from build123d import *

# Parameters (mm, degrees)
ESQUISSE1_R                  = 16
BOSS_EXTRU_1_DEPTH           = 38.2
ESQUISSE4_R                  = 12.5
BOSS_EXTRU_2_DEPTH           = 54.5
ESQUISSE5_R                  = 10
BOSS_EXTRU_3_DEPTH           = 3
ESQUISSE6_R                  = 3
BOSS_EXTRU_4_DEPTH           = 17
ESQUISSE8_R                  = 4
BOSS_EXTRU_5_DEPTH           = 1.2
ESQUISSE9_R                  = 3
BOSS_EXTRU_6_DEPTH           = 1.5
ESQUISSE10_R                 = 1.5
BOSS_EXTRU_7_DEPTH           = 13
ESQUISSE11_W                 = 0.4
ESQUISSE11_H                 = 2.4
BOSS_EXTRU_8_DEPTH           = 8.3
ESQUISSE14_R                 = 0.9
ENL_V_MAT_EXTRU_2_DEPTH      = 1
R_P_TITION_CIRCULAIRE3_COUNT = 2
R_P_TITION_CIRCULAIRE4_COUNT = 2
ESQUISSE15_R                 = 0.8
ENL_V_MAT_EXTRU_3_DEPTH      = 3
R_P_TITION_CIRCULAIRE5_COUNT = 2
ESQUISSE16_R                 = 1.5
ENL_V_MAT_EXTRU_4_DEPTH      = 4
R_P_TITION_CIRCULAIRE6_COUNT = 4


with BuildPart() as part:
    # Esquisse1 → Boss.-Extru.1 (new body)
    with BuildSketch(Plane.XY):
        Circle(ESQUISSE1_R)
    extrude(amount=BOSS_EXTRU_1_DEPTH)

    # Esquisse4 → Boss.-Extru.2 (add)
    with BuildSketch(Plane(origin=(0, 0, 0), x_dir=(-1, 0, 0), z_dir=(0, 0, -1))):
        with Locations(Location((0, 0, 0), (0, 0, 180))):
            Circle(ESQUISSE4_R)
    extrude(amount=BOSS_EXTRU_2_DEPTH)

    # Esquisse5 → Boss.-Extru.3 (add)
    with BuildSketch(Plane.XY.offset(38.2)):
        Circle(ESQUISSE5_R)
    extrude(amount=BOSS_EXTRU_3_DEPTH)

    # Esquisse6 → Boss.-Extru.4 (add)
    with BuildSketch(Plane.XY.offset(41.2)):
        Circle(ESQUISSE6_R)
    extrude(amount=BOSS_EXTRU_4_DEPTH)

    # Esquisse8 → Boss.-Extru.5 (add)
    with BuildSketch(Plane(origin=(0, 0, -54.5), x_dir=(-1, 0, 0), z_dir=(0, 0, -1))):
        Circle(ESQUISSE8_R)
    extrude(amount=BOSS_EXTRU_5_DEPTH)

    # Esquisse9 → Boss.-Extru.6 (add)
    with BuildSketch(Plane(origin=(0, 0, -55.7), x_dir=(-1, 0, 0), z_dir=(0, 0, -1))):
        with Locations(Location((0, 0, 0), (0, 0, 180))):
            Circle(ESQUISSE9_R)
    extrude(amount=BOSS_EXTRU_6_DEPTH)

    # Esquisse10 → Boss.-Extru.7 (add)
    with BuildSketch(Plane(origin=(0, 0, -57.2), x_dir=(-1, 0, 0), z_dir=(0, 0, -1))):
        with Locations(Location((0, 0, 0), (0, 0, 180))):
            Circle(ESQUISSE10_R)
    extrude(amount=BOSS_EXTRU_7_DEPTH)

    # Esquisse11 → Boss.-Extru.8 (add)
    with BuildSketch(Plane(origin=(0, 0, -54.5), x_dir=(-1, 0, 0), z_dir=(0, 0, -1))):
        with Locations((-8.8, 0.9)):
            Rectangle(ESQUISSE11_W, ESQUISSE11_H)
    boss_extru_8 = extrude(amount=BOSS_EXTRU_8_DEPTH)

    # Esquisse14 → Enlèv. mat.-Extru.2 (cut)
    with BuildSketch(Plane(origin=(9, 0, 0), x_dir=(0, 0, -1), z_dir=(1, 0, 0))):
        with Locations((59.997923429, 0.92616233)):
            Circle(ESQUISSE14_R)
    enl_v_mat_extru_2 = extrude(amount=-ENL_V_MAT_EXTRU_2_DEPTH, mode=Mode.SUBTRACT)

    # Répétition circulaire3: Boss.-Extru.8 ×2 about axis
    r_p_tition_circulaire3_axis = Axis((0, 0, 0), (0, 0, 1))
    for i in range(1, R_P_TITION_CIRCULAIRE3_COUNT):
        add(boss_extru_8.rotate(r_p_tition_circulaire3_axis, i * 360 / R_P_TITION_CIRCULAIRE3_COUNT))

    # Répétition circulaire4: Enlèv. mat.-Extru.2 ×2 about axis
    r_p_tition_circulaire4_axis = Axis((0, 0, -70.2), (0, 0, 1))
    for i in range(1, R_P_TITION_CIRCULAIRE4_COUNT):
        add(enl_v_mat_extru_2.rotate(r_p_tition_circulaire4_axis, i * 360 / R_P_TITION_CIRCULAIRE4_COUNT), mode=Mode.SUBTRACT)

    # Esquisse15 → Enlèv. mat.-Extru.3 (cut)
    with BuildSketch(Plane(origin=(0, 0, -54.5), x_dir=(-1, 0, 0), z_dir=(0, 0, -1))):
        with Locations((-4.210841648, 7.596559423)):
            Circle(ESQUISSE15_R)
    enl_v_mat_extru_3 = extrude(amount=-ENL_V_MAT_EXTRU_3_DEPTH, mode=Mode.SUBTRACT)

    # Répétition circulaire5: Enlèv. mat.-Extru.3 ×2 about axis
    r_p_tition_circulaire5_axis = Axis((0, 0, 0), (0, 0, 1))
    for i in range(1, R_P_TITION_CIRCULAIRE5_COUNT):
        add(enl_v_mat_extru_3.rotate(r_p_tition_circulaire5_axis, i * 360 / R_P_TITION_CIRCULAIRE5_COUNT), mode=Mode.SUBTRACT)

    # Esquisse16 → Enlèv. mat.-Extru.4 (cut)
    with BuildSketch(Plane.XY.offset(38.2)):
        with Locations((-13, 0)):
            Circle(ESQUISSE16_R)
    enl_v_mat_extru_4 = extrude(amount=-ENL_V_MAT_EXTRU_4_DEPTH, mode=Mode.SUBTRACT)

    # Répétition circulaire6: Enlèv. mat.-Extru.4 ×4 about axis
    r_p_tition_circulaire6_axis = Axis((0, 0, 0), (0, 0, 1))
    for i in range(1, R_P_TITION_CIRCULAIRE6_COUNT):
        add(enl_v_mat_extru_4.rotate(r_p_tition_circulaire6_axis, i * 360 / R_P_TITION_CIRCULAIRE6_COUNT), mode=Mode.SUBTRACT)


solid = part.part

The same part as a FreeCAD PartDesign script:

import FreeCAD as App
import Part
import Sketcher

doc = App.newDocument("Part")
params = doc.addObject("Spreadsheet::Sheet", "Params")
for row, (alias, value) in enumerate([
    ("sketch1_diameter", "32 mm"),
    ("pad1_length", "38.2 mm"),
    ("sketch2_diameter", "25 mm"),
    ("pad2_length", "54.5 mm"),
    ("sketch3_diameter", "20 mm"),
    ("pad3_length", "3 mm"),
    ("sketch4_diameter", "6 mm"),
    ("pad4_length", "17 mm"),
    ("sketch5_diameter", "8 mm"),
    ("pad5_length", "1.2 mm"),
    ("sketch6_diameter", "6 mm"),
    ("pad6_length", "1.5 mm"),
    ("sketch7_diameter", "3 mm"),
    ("pad7_length", "13 mm"),
    ("sketch8_width", "0.4 mm"),
    ("sketch8_height", "2.4 mm"),
    ("pad8_length", "8.3 mm"),
    ("sketch9_diameter", "1.8 mm"),
    ("pocket1_length", "1 mm"),
    ("sketch10_diameter", "1.6 mm"),
    ("pocket2_length", "3 mm"),
    ("sketch11_diameter", "3 mm"),
    ("pocket3_length", "4 mm"),
], start=1):
    params.set(f"A{row}", alias)
    params.set(f"B{row}", "=" + value)
    params.setAlias(f"B{row}", alias)

body = doc.addObject("PartDesign::Body", "Body")

# Sketch on XY plane
sketch1 = body.newObject("Sketcher::SketchObject", "Sketch")
sketch1.AttachmentSupport = (doc.getObject("XY_Plane"), [""])
sketch1.MapMode = "FlatFace"
sketch1.addGeometry(Part.Circle(App.Vector(0, 0, 0), App.Vector(0, 0, 1), 16), False)
sketch1.addConstraint([
    Sketcher.Constraint("Coincident", 0, 3, -1, 1),
    Sketcher.Constraint("Diameter", 0, 32.0),
])
sketch1.setExpression("Constraints[1]", "Params.sketch1_diameter")
pad1 = body.newObject("PartDesign::Pad", "Pad")
pad1.Profile = sketch1
pad1.setExpression("Length", "Params.pad1_length")

# Sketch on XY plane
sketch2 = body.newObject("Sketcher::SketchObject", "Sketch001")
sketch2.AttachmentSupport = (doc.getObject("XY_Plane"), [""])
sketch2.MapMode = "FlatFace"
sketch2.addGeometry(Part.Circle(App.Vector(0, 0, 0), App.Vector(0, 0, 1), 12), False)
sketch2.addConstraint([
    Sketcher.Constraint("Coincident", 0, 3, -1, 1),
    Sketcher.Constraint("Diameter", 0, 25.0),
])
sketch2.setExpression("Constraints[1]", "Params.sketch2_diameter")
pad2 = body.newObject("PartDesign::Pad", "Pad001")
pad2.Profile = sketch2
pad2.setExpression("Length", "Params.pad2_length")
pad2.Reversed = True

# Sketch on XY plane
sketch3 = body.newObject("Sketcher::SketchObject", "Sketch002")
sketch3.AttachmentSupport = (doc.getObject("XY_Plane"), [""])
sketch3.MapMode = "FlatFace"
sketch3.AttachmentOffset = App.Placement(App.Vector(0, 0, 38.2), App.Rotation())
sketch3.addGeometry(Part.Circle(App.Vector(0, 0, 0), App.Vector(0, 0, 1), 10), False)
sketch3.addConstraint([
    Sketcher.Constraint("Coincident", 0, 3, -1, 1),
    Sketcher.Constraint("Diameter", 0, 20.0),
])
sketch3.setExpression("Constraints[1]", "Params.sketch3_diameter")
pad3 = body.newObject("PartDesign::Pad", "Pad002")
pad3.Profile = sketch3
pad3.setExpression("Length", "Params.pad3_length")

# Sketch on XY plane
sketch4 = body.newObject("Sketcher::SketchObject", "Sketch003")
sketch4.AttachmentSupport = (doc.getObject("XY_Plane"), [""])
sketch4.MapMode = "FlatFace"
sketch4.AttachmentOffset = App.Placement(App.Vector(0, 0, 41.2), App.Rotation())
sketch4.addGeometry(Part.Circle(App.Vector(0, 0, 0), App.Vector(0, 0, 1), 3), False)
sketch4.addConstraint([
    Sketcher.Constraint("Coincident", 0, 3, -1, 1),
    Sketcher.Constraint("Diameter", 0, 6.0),
])
sketch4.setExpression("Constraints[1]", "Params.sketch4_diameter")
pad4 = body.newObject("PartDesign::Pad", "Pad003")
pad4.Profile = sketch4
pad4.setExpression("Length", "Params.pad4_length")

# Sketch on XY plane
sketch5 = body.newObject("Sketcher::SketchObject", "Sketch004")
sketch5.AttachmentSupport = (doc.getObject("XY_Plane"), [""])
sketch5.MapMode = "FlatFace"
sketch5.AttachmentOffset = App.Placement(App.Vector(0, 0, -54.5), App.Rotation())
sketch5.addGeometry(Part.Circle(App.Vector(0, 0, 0), App.Vector(0, 0, 1), 4), False)
sketch5.addConstraint([
    Sketcher.Constraint("Coincident", 0, 3, -1, 1),
    Sketcher.Constraint("Diameter", 0, 8.0),
])
sketch5.setExpression("Constraints[1]", "Params.sketch5_diameter")
pad5 = body.newObject("PartDesign::Pad", "Pad004")
pad5.Profile = sketch5
pad5.setExpression("Length", "Params.pad5_length")
pad5.Reversed = True

# Sketch on XY plane
sketch6 = body.newObject("Sketcher::SketchObject", "Sketch005")
sketch6.AttachmentSupport = (doc.getObject("XY_Plane"), [""])
sketch6.MapMode = "FlatFace"
sketch6.AttachmentOffset = App.Placement(App.Vector(0, 0, -55.7), App.Rotation())
sketch6.addGeometry(Part.Circle(App.Vector(0, 0, 0), App.Vector(0, 0, 1), 3), False)
sketch6.addConstraint([
    Sketcher.Constraint("Coincident", 0, 3, -1, 1),
    Sketcher.Constraint("Diameter", 0, 6.0),
])
sketch6.setExpression("Constraints[1]", "Params.sketch6_diameter")
pad6 = body.newObject("PartDesign::Pad", "Pad005")
pad6.Profile = sketch6
pad6.setExpression("Length", "Params.pad6_length")
pad6.Reversed = True

# Sketch on XY plane
sketch7 = body.newObject("Sketcher::SketchObject", "Sketch006")
sketch7.AttachmentSupport = (doc.getObject("XY_Plane"), [""])
sketch7.MapMode = "FlatFace"
sketch7.AttachmentOffset = App.Placement(App.Vector(0, 0, -57.2), App.Rotation())
sketch7.addGeometry(Part.Circle(App.Vector(0, 0, 0), App.Vector(0, 0, 1), 1.5), False)
sketch7.addConstraint([
    Sketcher.Constraint("Coincident", 0, 3, -1, 1),
    Sketcher.Constraint("Diameter", 0, 3.0),
])
sketch7.setExpression("Constraints[1]", "Params.sketch7_diameter")
pad7 = body.newObject("PartDesign::Pad", "Pad006")
pad7.Profile = sketch7
pad7.setExpression("Length", "Params.pad7_length")
pad7.Reversed = True

# Sketch on XY plane
sketch8 = body.newObject("Sketcher::SketchObject", "Sketch007")
sketch8.AttachmentSupport = (doc.getObject("XY_Plane"), [""])
sketch8.MapMode = "FlatFace"
sketch8.AttachmentOffset = App.Placement(App.Vector(0, 0, -54.5), App.Rotation())
sketch8.addGeometry([
    Part.LineSegment(App.Vector(9, 2.1, 0), App.Vector(9, -0.3, 0)),
    Part.LineSegment(App.Vector(9, -0.3, 0), App.Vector(8.6, -0.3, 0)),
    Part.LineSegment(App.Vector(8.6, -0.3, 0), App.Vector(8.6, 2.1, 0)),
    Part.LineSegment(App.Vector(8.6, 2.1, 0), App.Vector(9, 2.1, 0)),
], False)
sketch8.addConstraint([
    Sketcher.Constraint("Coincident", 0, 2, 1, 1),
    Sketcher.Constraint("Coincident", 1, 2, 2, 1),
    Sketcher.Constraint("Coincident", 2, 2, 3, 1),
    Sketcher.Constraint("Coincident", 3, 2, 0, 1),
    Sketcher.Constraint("Vertical", 0),
    Sketcher.Constraint("Horizontal", 1),
    Sketcher.Constraint("Vertical", 2),
    Sketcher.Constraint("Horizontal", 3),
    Sketcher.Constraint("DistanceX", 1, 2, 1, 1, 0.4),
    Sketcher.Constraint("DistanceY", 0, 2, 0, 1, 2.4),
    Sketcher.Constraint("DistanceX", -1, 1, 0, 2, 9.0),
    Sketcher.Constraint("DistanceY", 0, 2, -1, 1, 0.3),
])
sketch8.setExpression("Constraints[8]", "Params.sketch8_width")
sketch8.setExpression("Constraints[9]", "Params.sketch8_height")
pad8 = body.newObject("PartDesign::Pad", "Pad007")
pad8.Profile = sketch8
pad8.setExpression("Length", "Params.pad8_length")
pad8.Reversed = True

# Sketch on YZ plane
sketch9 = body.newObject("Sketcher::SketchObject", "Sketch008")
sketch9.AttachmentSupport = (doc.getObject("YZ_Plane"), [""])
sketch9.MapMode = "FlatFace"
sketch9.AttachmentOffset = App.Placement(App.Vector(0, 0, 9), App.Rotation())
sketch9.addGeometry(Part.Circle(App.Vector(0.9, -60, 0), App.Vector(0, 0, 1), 0.9), False)
sketch9.addConstraint([
    Sketcher.Constraint("Diameter", 0, 1.8),
    Sketcher.Constraint("DistanceX", -1, 1, 0, 3, 0.926162),
    Sketcher.Constraint("DistanceY", 0, 3, -1, 1, 59.997923),
])
sketch9.setExpression("Constraints[0]", "Params.sketch9_diameter")
pocket1 = body.newObject("PartDesign::Pocket", "Pocket")
pocket1.Profile = sketch9
pocket1.setExpression("Length", "Params.pocket1_length")
doc.recompute()

polarpattern = body.newObject("PartDesign::PolarPattern", "PolarPattern")
polarpattern.Originals = [pad8]
polarpattern.Axis = (doc.getObject("Z_Axis"), [""])
polarpattern.Angle = 360
polarpattern.Occurrences = 2
body.Tip = polarpattern
doc.recompute()

polarpattern2 = body.newObject("PartDesign::PolarPattern", "PolarPattern001")
polarpattern2.Originals = [pocket1]
polarpattern2.Axis = (doc.getObject("Z_Axis"), [""])
polarpattern2.Angle = 360
polarpattern2.Occurrences = 2
body.Tip = polarpattern2

# Sketch on XY plane
sketch10 = body.newObject("Sketcher::SketchObject", "Sketch009")
sketch10.AttachmentSupport = (doc.getObject("XY_Plane"), [""])
sketch10.MapMode = "FlatFace"
sketch10.AttachmentOffset = App.Placement(App.Vector(0, 0, -54.5), App.Rotation())
sketch10.addGeometry(Part.Circle(App.Vector(4.2, 7.6, 0), App.Vector(0, 0, 1), 0.8), False)
sketch10.addConstraint([
    Sketcher.Constraint("Diameter", 0, 1.6),
    Sketcher.Constraint("DistanceX", -1, 1, 0, 3, 4.210842),
    Sketcher.Constraint("DistanceY", -1, 1, 0, 3, 7.596559),
])
sketch10.setExpression("Constraints[0]", "Params.sketch10_diameter")
pocket2 = body.newObject("PartDesign::Pocket", "Pocket001")
pocket2.Profile = sketch10
pocket2.setExpression("Length", "Params.pocket2_length")
pocket2.Reversed = True
doc.recompute()

polarpattern3 = body.newObject("PartDesign::PolarPattern", "PolarPattern002")
polarpattern3.Originals = [pocket2]
polarpattern3.Axis = (doc.getObject("Z_Axis"), [""])
polarpattern3.Angle = 360
polarpattern3.Occurrences = 2
body.Tip = polarpattern3

# Sketch on XY plane
sketch11 = body.newObject("Sketcher::SketchObject", "Sketch010")
sketch11.AttachmentSupport = (doc.getObject("XY_Plane"), [""])
sketch11.MapMode = "FlatFace"
sketch11.AttachmentOffset = App.Placement(App.Vector(0, 0, 38.2), App.Rotation())
sketch11.addGeometry(Part.Circle(App.Vector(-13, 0, 0), App.Vector(0, 0, 1), 1.5), False)
sketch11.addConstraint([
    Sketcher.Constraint("PointOnObject", 0, 3, -1),
    Sketcher.Constraint("Diameter", 0, 3.0),
    Sketcher.Constraint("DistanceX", 0, 3, -1, 1, 13.0),
])
sketch11.setExpression("Constraints[1]", "Params.sketch11_diameter")
pocket3 = body.newObject("PartDesign::Pocket", "Pocket002")
pocket3.Profile = sketch11
pocket3.setExpression("Length", "Params.pocket3_length")
doc.recompute()

polarpattern4 = body.newObject("PartDesign::PolarPattern", "PolarPattern003")
polarpattern4.Originals = [pocket3]
polarpattern4.Axis = (doc.getObject("Z_Axis"), [""])
polarpattern4.Angle = 360
polarpattern4.Occurrences = 4
body.Tip = polarpattern4

doc.recompute()
